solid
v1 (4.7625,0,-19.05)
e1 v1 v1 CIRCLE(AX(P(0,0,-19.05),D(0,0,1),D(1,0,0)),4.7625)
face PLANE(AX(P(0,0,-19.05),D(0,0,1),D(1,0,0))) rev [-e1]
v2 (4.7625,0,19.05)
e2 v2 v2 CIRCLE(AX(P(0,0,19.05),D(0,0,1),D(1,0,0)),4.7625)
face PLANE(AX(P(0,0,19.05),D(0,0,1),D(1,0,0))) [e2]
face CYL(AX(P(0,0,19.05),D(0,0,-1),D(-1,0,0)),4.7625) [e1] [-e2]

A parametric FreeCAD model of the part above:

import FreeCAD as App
import Part
import Sketcher

V = App.Vector
Q = App.Units.Quantity

doc = App.newDocument("Part")
body = doc.addObject("PartDesign::Body", "Body")

# Sketch on XY plane
sketch1 = body.newObject("Sketcher::SketchObject", "Sketch")
sketch1.AttachmentSupport = (doc.getObject("XY_Plane"), [""])
sketch1.MapMode = "FlatFace"
sketch1.addGeometry(Part.Circle(V(0, 0, 0), V(0, 0, 1), 4.7625), False)
sketch1.addConstraint([
    Sketcher.Constraint("Coincident", 0, 3, -1, 1),
    Sketcher.Constraint("Diameter", 0, Q("0.375 in")),
])
pad1 = body.newObject("PartDesign::Pad", "Pad")
pad1.Profile = sketch1
pad1.Length = Q("1.5 in")
pad1.Midplane = True

doc.recompute()
